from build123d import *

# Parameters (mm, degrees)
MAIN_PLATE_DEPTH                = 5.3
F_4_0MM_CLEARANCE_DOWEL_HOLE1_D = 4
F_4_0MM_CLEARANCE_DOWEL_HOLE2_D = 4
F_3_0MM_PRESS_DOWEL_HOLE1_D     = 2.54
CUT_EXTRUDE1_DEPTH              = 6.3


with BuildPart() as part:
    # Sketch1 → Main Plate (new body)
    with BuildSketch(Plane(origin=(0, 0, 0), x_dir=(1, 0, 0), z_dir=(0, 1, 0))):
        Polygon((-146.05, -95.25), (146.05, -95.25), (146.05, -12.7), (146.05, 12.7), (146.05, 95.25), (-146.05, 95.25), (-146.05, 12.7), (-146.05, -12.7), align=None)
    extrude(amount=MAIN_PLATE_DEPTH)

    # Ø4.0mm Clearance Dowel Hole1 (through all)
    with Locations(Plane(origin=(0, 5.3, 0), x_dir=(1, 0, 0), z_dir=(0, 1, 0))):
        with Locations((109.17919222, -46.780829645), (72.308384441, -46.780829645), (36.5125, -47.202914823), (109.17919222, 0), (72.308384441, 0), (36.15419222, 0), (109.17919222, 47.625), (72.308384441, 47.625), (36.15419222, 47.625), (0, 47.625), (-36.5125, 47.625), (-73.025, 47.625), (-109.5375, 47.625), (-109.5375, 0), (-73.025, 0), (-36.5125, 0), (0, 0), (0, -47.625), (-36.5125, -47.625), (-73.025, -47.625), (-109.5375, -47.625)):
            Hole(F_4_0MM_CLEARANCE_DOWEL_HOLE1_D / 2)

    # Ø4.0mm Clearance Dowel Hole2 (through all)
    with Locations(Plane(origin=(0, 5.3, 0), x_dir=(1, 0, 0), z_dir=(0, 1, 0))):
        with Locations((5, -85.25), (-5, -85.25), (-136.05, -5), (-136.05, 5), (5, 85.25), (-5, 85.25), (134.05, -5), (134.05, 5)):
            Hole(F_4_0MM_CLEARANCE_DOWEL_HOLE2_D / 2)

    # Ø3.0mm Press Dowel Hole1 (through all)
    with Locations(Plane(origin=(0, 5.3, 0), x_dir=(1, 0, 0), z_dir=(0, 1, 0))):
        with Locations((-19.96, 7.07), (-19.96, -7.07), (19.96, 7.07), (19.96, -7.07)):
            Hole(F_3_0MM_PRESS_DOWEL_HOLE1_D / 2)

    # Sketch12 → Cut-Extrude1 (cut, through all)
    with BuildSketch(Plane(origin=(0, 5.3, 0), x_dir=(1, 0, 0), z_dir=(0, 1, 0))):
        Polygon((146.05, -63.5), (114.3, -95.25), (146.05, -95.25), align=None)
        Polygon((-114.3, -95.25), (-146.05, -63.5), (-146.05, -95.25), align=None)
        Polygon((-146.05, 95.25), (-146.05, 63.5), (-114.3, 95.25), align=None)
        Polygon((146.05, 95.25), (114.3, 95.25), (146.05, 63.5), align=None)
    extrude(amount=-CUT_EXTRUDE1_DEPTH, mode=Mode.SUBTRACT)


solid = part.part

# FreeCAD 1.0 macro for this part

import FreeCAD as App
import Part
import Sketcher
from FreeCAD import Vector
Q = App.Units.Quantity


def add_polygon(sketch, points):
    """Adds a closed chain of lines whose ends are joined by coincident constraints."""
    first, n = sketch.GeometryCount, len(points)
    for a, b in zip(points, points[1:] + points[:1]):
        sketch.addGeometry(Part.LineSegment(App.Vector(*a, 0), App.Vector(*b, 0)), False)
    for i in range(n):
        sketch.addConstraint(Sketcher.Constraint("Coincident", first + i, 2, first + (i + 1) % n, 1))

doc = App.newDocument("Part")
body = doc.addObject("PartDesign::Body", "Body")

# Sketch on XZ plane
sketch1 = body.newObject("Sketcher::SketchObject", "Sketch")
sketch1.AttachmentSupport = (doc.getObject("XZ_Plane"), [""])
sketch1.MapMode = "FlatFace"
add_polygon(sketch1, [(-146, 95), (146, 95), (146, -95), (-146, -95)])  # lines 0-3
sketch1.addConstraint([
    Sketcher.Constraint("Horizontal", 0),
    Sketcher.Constraint("Vertical", 1),
    Sketcher.Constraint("Horizontal", 2),
    Sketcher.Constraint("Vertical", 3),
    Sketcher.Constraint("Symmetric", 0, 2, 2, 2, -1, 1),
    Sketcher.Constraint("DistanceX", 0, 1, 0, 2, Q("11.5 in")),
    Sketcher.Constraint("DistanceY", 1, 2, 1, 1, Q("7.5 in")),
])
pad1 = body.newObject("PartDesign::Pad", "Pad")
pad1.Profile = sketch1
pad1.Length = 5.3
pad1.Reversed = True

# Sketch on XZ plane
sketch2 = body.newObject("Sketcher::SketchObject", "Sketch001")
sketch2.AttachmentSupport = (doc.getObject("XZ_Plane"), [""])
sketch2.MapMode = "FlatFace"
sketch2.AttachmentOffset = App.Placement(Vector(0, 0, -5.3), App.Rotation())
sketch2.addGeometry([
    Part.Circle(Vector(109.2, 46.8, 0), Vector(0, 0, 1), 2),  # 0
    Part.Circle(Vector(72.3, 46.8, 0), Vector(0, 0, 1), 2),  # 1
    Part.Circle(Vector(36.5, 47.2, 0), Vector(0, 0, 1), 2),  # 2
    Part.Circle(Vector(109.2, 0, 0), Vector(0, 0, 1), 2),  # 3
    Part.Circle(Vector(72.3, 0, 0), Vector(0, 0, 1), 2),  # 4
    Part.Circle(Vector(36.2, 0, 0), Vector(0, 0, 1), 2),  # 5
    Part.Circle(Vector(109.2, -47.6, 0), Vector(0, 0, 1), 2),  # 6
    Part.Circle(Vector(72.3, -47.6, 0), Vector(0, 0, 1), 2),  # 7
    Part.Circle(Vector(36.2, -47.6, 0), Vector(0, 0, 1), 2),  # 8
    Part.Circle(Vector(0, -47.6, 0), Vector(0, 0, 1), 2),  # 9
    Part.Circle(Vector(-36.5, -47.6, 0), Vector(0, 0, 1), 2),  # 10
    Part.Circle(Vector(-73, -47.6, 0), Vector(0, 0, 1), 2),  # 11
    Part.Circle(Vector(-109.5, -47.6, 0), Vector(0, 0, 1), 2),  # 12
    Part.Circle(Vector(-109.5, 0, 0), Vector(0, 0, 1), 2),  # 13
    Part.Circle(Vector(-73, 0, 0), Vector(0, 0, 1), 2),  # 14
    Part.Circle(Vector(-36.5, 0, 0), Vector(0, 0, 1), 2),  # 15
    Part.Circle(Vector(0, 0, 0), Vector(0, 0, 1), 2),  # 16
    Part.Circle(Vector(0, 47.6, 0), Vector(0, 0, 1), 2),  # 17
    Part.Circle(Vector(-36.5, 47.6, 0), Vector(0, 0, 1), 2),  # 18
    Part.Circle(Vector(-73, 47.6, 0), Vector(0, 0, 1), 2),  # 19
    Part.Circle(Vector(-109.5, 47.6, 0), Vector(0, 0, 1), 2),  # 20
], False)
sketch2.addConstraint([
    Sketcher.Constraint("Coincident", 16, 3, -1, 1),
    Sketcher.Constraint("Equal", 0, 1),
    Sketcher.Constraint("Equal", 1, 2),
    Sketcher.Constraint("Equal", 2, 3),
    Sketcher.Constraint("Equal", 3, 4),
    Sketcher.Constraint("Equal", 4, 5),
    Sketcher.Constraint("Equal", 5, 6),
    Sketcher.Constraint("Equal", 6, 7),
    Sketcher.Constraint("Equal", 7, 8),
    Sketcher.Constraint("Equal", 8, 9),
    Sketcher.Constraint("Equal", 9, 10),
    Sketcher.Constraint("Equal", 10, 11),
    Sketcher.Constraint("Equal", 11, 12),
    Sketcher.Constraint("Equal", 12, 13),
    Sketcher.Constraint("Equal", 13, 14),
    Sketcher.Constraint("Equal", 14, 15),
    Sketcher.Constraint("Equal", 15, 16),
    Sketcher.Constraint("Equal", 16, 17),
    Sketcher.Constraint("Equal", 17, 18),
    Sketcher.Constraint("Equal", 18, 19),
    Sketcher.Constraint("Equal", 19, 20),
    Sketcher.Constraint("Symmetric", 9, 3, 17, 3, -1, 1),
    Sketcher.Constraint("Symmetric", 10, 3, 18, 3, -1),
    Sketcher.Constraint("Symmetric", 11, 3, 19, 3, -1),
    Sketcher.Constraint("Symmetric", 12, 3, 20, 3, -1),
    Sketcher.Constraint("PointOnObject", 3, 3, -1),
    Sketcher.Constraint("PointOnObject", 4, 3, -1),
    Sketcher.Constraint("PointOnObject", 5, 3, -1),
    Sketcher.Constraint("PointOnObject", 9, 3, -2),
    Sketcher.Constraint("PointOnObject", 13, 3, -1),
    Sketcher.Constraint("PointOnObject", 14, 3, -1),
    Sketcher.Constraint("PointOnObject", 15, 3, -1),
    Sketcher.Constraint("Horizontal", 0, 3, 1, 3),
    Sketcher.Constraint("Horizontal", 6, 3, 7, 3),
    Sketcher.Constraint("Horizontal", 7, 3, 8, 3),
    Sketcher.Constraint("Horizontal", 8, 3, 9, 3),
    Sketcher.Constraint("Horizontal", 9, 3, 10, 3),
    Sketcher.Constraint("Horizontal", 10, 3, 11, 3),
    Sketcher.Constraint("Horizontal", 11, 3, 12, 3),
    Sketcher.Constraint("Vertical", 0, 3, 3, 3),
    Sketcher.Constraint("Vertical", 1, 3, 4, 3),
    Sketcher.Constraint("Vertical", 3, 3, 6, 3),
    Sketcher.Constraint("Vertical", 4, 3, 7, 3),
    Sketcher.Constraint("Vertical", 5, 3, 8, 3),
    Sketcher.Constraint("Vertical", 12, 3, 13, 3),
    Sketcher.Constraint("Vertical", 11, 3, 14, 3),
    Sketcher.Constraint("Vertical", 10, 3, 15, 3),
    Sketcher.Constraint("Diameter", 0, Q("4 mm")),
    Sketcher.Constraint("DistanceX", -1, 1, 2, 3, Q("1.4375 in")),
    Sketcher.Constraint("DistanceY", 6, 3, -1, 1, Q("1.875 in")),
    Sketcher.Constraint("DistanceX", 10, 3, -1, 1, Q("1.4375 in")),
    Sketcher.Constraint("DistanceX", 11, 3, -1, 1, Q("2.875 in")),
    Sketcher.Constraint("DistanceX", 12, 3, -1, 1, Q("4.3125 in")),
    Sketcher.Constraint("DistanceX", 5, 3, 3, 3, Q("2.875 in")),
    Sketcher.Constraint("DistanceY", -1, 1, 0, 3, Q("46.78083 mm")),
    Sketcher.Constraint("DistanceX", -1, 1, 0, 3, Q("109.179192 mm")),
    Sketcher.Constraint("DistanceX", -1, 1, 1, 3, Q("72.308384 mm")),
    Sketcher.Constraint("DistanceY", -1, 1, 2, 3, Q("47.202915 mm")),
])
doc.recompute()
hole = body.newObject("PartDesign::Hole", "Hole")
hole.Profile = sketch2
hole.ThreadType = "None"
hole.Diameter = 4
hole.DepthType = "ThroughAll"
hole.Reversed = True

# Sketch on XZ plane
sketch3 = body.newObject("Sketcher::SketchObject", "Sketch002")
sketch3.AttachmentSupport = (doc.getObject("XZ_Plane"), [""])
sketch3.MapMode = "FlatFace"
sketch3.AttachmentOffset = App.Placement(Vector(0, 0, -5.3), App.Rotation())
sketch3.addGeometry([
    Part.Circle(Vector(5, 85.2, 0), Vector(0, 0, 1), 2),  # 0
    Part.Circle(Vector(-5, 85.2, 0), Vector(0, 0, 1), 2),  # 1
    Part.Circle(Vector(-136.1, 5, 0), Vector(0, 0, 1), 2),  # 2
    Part.Circle(Vector(-136.1, -5, 0), Vector(0, 0, 1), 2),  # 3
    Part.Circle(Vector(5, -85.2, 0), Vector(0, 0, 1), 2),  # 4
    Part.Circle(Vector(-5, -85.2, 0), Vector(0, 0, 1), 2),  # 5
    Part.Circle(Vector(134.1, 5, 0), Vector(0, 0, 1), 2),  # 6
    Part.Circle(Vector(134.1, -5, 0), Vector(0, 0, 1), 2),  # 7
], False)
sketch3.addConstraint([
    Sketcher.Constraint("Equal", 0, 1),
    Sketcher.Constraint("Equal", 1, 2),
    Sketcher.Constraint("Equal", 2, 3),
    Sketcher.Constraint("Equal", 3, 4),
    Sketcher.Constraint("Equal", 4, 5),
    Sketcher.Constraint("Equal", 5, 6),
    Sketcher.Constraint("Equal", 6, 7),
    Sketcher.Constraint("Symmetric", 1, 3, 4, 3, -1, 1),
    Sketcher.Constraint("Symmetric", 0, 3, 5, 3, -1, 1),
    Sketcher.Constraint("Symmetric", 0, 3, 1, 3, -2),
    Sketcher.Constraint("Symmetric", 2, 3, 3, 3, -1),
    Sketcher.Constraint("Symmetric", 6, 3, 7, 3, -1),
    Sketcher.Constraint("Horizontal", 2, 3, 6, 3),
    Sketcher.Constraint("Diameter", 0, Q("4 mm")),
    Sketcher.Constraint("DistanceX", -1, 1, 0, 3, Q("5 mm")),
    Sketcher.Constraint("DistanceY", -1, 1, 0, 3, Q("85.25 mm")),
    Sketcher.Constraint("DistanceX", 2, 3, -1, 1, Q("136.05 mm")),
    Sketcher.Constraint("DistanceY", -1, 1, 2, 3, Q("5 mm")),
    Sketcher.Constraint("DistanceX", -1, 1, 6, 3, Q("134.05 mm")),
])
doc.recompute()
hole2 = body.newObject("PartDesign::Hole", "Hole001")
hole2.Profile = sketch3
hole2.ThreadType = "None"
hole2.Diameter = 4
hole2.DepthType = "ThroughAll"
hole2.Reversed = True

# Sketch on XZ plane
sketch4 = body.newObject("Sketcher::SketchObject", "Sketch003")
sketch4.AttachmentSupport = (doc.getObject("XZ_Plane"), [""])
sketch4.MapMode = "FlatFace"
sketch4.AttachmentOffset = App.Placement(Vector(0, 0, -5.3), App.Rotation())
sketch4.addGeometry([
    Part.Circle(Vector(-20, -7.1, 0), Vector(0, 0, 1), 1.3),
    Part.Circle(Vector(-20, 7.1, 0), Vector(0, 0, 1), 1.3),
    Part.Circle(Vector(20, -7.1, 0), Vector(0, 0, 1), 1.3),
    Part.Circle(Vector(20, 7.1, 0), Vector(0, 0, 1), 1.3),
], False)
sketch4.addConstraint([
    Sketcher.Constraint("Equal", 0, 1),
    Sketcher.Constraint("Equal", 1, 2),
    Sketcher.Constraint("Equal", 2, 3),
    Sketcher.Constraint("Symmetric", 1, 3, 2, 3, -1, 1),
    Sketcher.Constraint("Symmetric", 0, 3, 3, 3, -1, 1),
    Sketcher.Constraint("Symmetric", 0, 3, 2, 3, -2),
    Sketcher.Constraint("Diameter", 0, Q("0.1 in")),
    Sketcher.Constraint("DistanceX", 0, 3, -1, 1, Q("19.96 mm")),
    Sketcher.Constraint("DistanceY", 0, 3, -1, 1, Q("7.07 mm")),
])
doc.recompute()
hole3 = body.newObject("PartDesign::Hole", "Hole002")
hole3.Profile = sketch4
hole3.ThreadType = "None"
hole3.Diameter = Q("0.1 in")
hole3.DepthType = "ThroughAll"
hole3.Reversed = True

# Sketch on XZ plane
sketch5 = body.newObject("Sketcher::SketchObject", "Sketch004")
sketch5.AttachmentSupport = (doc.getObject("XZ_Plane"), [""])
sketch5.MapMode = "FlatFace"
sketch5.AttachmentOffset = App.Placement(Vector(0, 0, -5.3), App.Rotation())
add_polygon(sketch5, [(146, 64), (114, 95), (146, 95)])  # lines 0-2
add_polygon(sketch5, [(-114, 95), (-146, 64), (-146, 95)])  # lines 3-5
add_polygon(sketch5, [(-146, -95), (-146, -64), (-114, -95)])  # lines 6-8
add_polygon(sketch5, [(146, -95), (114, -95), (146, -64)])  # lines 9-11
sketch5.addConstraint([
    Sketcher.Constraint("Horizontal", 1),
    Sketcher.Constraint("Vertical", 2),
    Sketcher.Constraint("Vertical", 4),
    Sketcher.Constraint("Horizontal", 5),
    Sketcher.Constraint("Vertical", 6),
    Sketcher.Constraint("Horizontal", 8),
    Sketcher.Constraint("Horizontal", 9),
    Sketcher.Constraint("Vertical", 11),
    Sketcher.Constraint("Symmetric", 2, 2, 6, 2, -1, 1),
    Sketcher.Constraint("Symmetric", 0, 2, 7, 2, -1, 1),
    Sketcher.Constraint("Symmetric", 5, 2, 9, 2, -1, 1),
    Sketcher.Constraint("Symmetric", 3, 2, 10, 2, -1, 1),
    Sketcher.Constraint("Symmetric", 2, 2, 3, 2, -2),
    Sketcher.Constraint("Symmetric", 0, 2, 5, 2, -2),
    Sketcher.Constraint("Perpendicular", 0, 3),
    Sketcher.Constraint("DistanceX", 5, 2, 0, 2, Q("9 in")),
    Sketcher.Constraint("DistanceY", 6, 2, 3, 2, Q("5 in")),
    Sketcher.Constraint("DistanceX", 1, 1, 1, 2, Q("1.25 in")),
])
pocket1 = body.newObject("PartDesign::Pocket", "Pocket")
pocket1.Profile = sketch5
pocket1.Type = "ThroughAll"
pocket1.Reversed = True

doc.recompute()
